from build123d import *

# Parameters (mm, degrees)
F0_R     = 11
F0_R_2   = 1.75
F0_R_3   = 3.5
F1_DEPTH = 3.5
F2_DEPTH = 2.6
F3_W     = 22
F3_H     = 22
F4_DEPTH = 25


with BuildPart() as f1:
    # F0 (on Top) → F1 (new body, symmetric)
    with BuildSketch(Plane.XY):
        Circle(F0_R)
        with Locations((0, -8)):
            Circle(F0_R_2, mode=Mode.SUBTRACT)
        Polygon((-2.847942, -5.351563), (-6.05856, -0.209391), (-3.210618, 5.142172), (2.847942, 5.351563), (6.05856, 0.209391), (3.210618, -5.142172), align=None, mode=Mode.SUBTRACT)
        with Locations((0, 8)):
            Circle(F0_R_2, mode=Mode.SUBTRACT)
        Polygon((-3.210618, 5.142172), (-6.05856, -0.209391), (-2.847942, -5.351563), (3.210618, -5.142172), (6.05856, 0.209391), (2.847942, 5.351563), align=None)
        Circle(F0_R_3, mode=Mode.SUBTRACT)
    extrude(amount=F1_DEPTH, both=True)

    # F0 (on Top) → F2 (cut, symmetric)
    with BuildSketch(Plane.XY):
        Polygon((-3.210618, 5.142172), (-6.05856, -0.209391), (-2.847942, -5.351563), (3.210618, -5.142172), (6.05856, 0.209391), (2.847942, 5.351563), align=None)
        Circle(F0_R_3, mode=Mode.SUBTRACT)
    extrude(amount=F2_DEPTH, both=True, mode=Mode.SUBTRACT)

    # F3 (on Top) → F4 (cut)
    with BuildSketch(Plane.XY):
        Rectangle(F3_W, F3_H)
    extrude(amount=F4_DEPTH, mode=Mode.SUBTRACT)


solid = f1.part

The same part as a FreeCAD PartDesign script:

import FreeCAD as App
import Part
import Sketcher

V = App.Vector
Q = App.Units.Quantity

doc = App.newDocument("Part")
body = doc.addObject("PartDesign::Body", "Body")

# Sketch on XY plane
sketch1 = doc.addObject("Sketcher::SketchObject", "Sketch")
body.addObject(sketch1)
sketch1.AttachmentSupport = (doc.XY_Plane, [""])
sketch1.MapMode = "FlatFace"
sketch1.addGeometry([
    Part.Circle(V(0, 0, 0), V(0, 0, 1), 11),
    Part.Circle(V(0, -8, 0), V(0, 0, 1), 1.75),
    Part.Circle(V(0, 0, 0), V(0, 0, 1), 3.5),
    Part.Circle(V(0, 8, 0), V(0, 0, 1), 1.75),
], False)
sketch1.addConstraint([
    Sketcher.Constraint("Coincident", 0, 3, -1, 1),
    Sketcher.Constraint("Coincident", 2, 3, -1, 1),
    Sketcher.Constraint("Equal", 1, 3),
    Sketcher.Constraint("Symmetric", 1, 3, 3, 3, -1, 1),
    Sketcher.Constraint("PointOnObject", 1, 3, -2),
    Sketcher.Constraint("Diameter", 0, Q("22 mm")),
    Sketcher.Constraint("Diameter", 2, Q("7 mm")),
    Sketcher.Constraint("Diameter", 1, Q("3.5 mm")),
    Sketcher.Constraint("DistanceY", 1, 3, -1, 1, Q("8 mm")),
])
pad1 = doc.addObject("PartDesign::Pad", "Pad")
body.addObject(pad1)
pad1.Profile = sketch1
pad1.Length = 7
pad1.Midplane = True

# Sketch on XY plane
sketch2 = doc.addObject("Sketcher::SketchObject", "Sketch001")
body.addObject(sketch2)
sketch2.AttachmentSupport = (doc.XY_Plane, [""])
sketch2.MapMode = "FlatFace"
sketch2.addGeometry([
    Part.LineSegment(V(-3.210618, 5.142172, 0), V(-6.05856, -0.209391, 0)),  # 0
    Part.LineSegment(V(-6.05856, -0.209391, 0), V(-2.847942, -5.351563, 0)),  # 1
    Part.LineSegment(V(-2.847942, -5.351563, 0), V(3.210618, -5.142172, 0)),  # 2
    Part.LineSegment(V(3.210618, -5.142172, 0), V(6.05856, 0.209391, 0)),  # 3
    Part.LineSegment(V(6.05856, 0.209391, 0), V(2.847942, 5.351563, 0)),  # 4
    Part.LineSegment(V(2.847942, 5.351563, 0), V(-3.210618, 5.142172, 0)),  # 5
    Part.Circle(V(0, 0, 0), V(0, 0, 1), 3.5),  # 6
], False)
sketch2.addConstraint([
    Sketcher.Constraint("Coincident", 0, 2, 1, 1),
    Sketcher.Constraint("Coincident", 1, 2, 2, 1),
    Sketcher.Constraint("Coincident", 2, 2, 3, 1),
    Sketcher.Constraint("Coincident", 3, 2, 4, 1),
    Sketcher.Constraint("Coincident", 4, 2, 5, 1),
    Sketcher.Constraint("Coincident", 5, 2, 0, 1),
    Sketcher.Constraint("Coincident", 6, 3, -1, 1),
    Sketcher.Constraint("Symmetric", 0, 2, 3, 2, -1, 1),
    Sketcher.Constraint("Symmetric", 1, 2, 4, 2, -1, 1),
    Sketcher.Constraint("Symmetric", 2, 2, 5, 2, -1, 1),
    Sketcher.Constraint("Equal", 0, 1),
    Sketcher.Constraint("Equal", 1, 2),
    Sketcher.Constraint("Diameter", 6, Q("7 mm")),
    Sketcher.Constraint("DistanceX", 0, 2, -1, 1, Q("6.05856 mm")),
    Sketcher.Constraint("DistanceY", 0, 2, -1, 1, Q("0.209391 mm")),
    Sketcher.Constraint("DistanceX", -1, 1, 2, 2, Q("3.210618 mm")),
    Sketcher.Constraint("DistanceY", 1, 2, 0, 2, Q("5.142172 mm")),
])
pocket1 = doc.addObject("PartDesign::Pocket", "Pocket")
body.addObject(pocket1)
pocket1.Profile = sketch2
pocket1.Length = 5.2
pocket1.Midplane = True

# Sketch on XY plane
sketch3 = doc.addObject("Sketcher::SketchObject", "Sketch002")
body.addObject(sketch3)
sketch3.AttachmentSupport = (doc.XY_Plane, [""])
sketch3.MapMode = "FlatFace"
sketch3.addGeometry([
    Part.LineSegment(V(-11, 11, 0), V(-11, -11, 0)),
    Part.LineSegment(V(-11, -11, 0), V(11, -11, 0)),
    Part.LineSegment(V(11, -11, 0), V(11, 11, 0)),
    Part.LineSegment(V(11, 11, 0), V(-11, 11, 0)),
], False)
sketch3.addConstraint([
    Sketcher.Constraint("Coincident", 0, 2, 1, 1),
    Sketcher.Constraint("Coincident", 1, 2, 2, 1),
    Sketcher.Constraint("Coincident", 2, 2, 3, 1),
    Sketcher.Constraint("Coincident", 3, 2, 0, 1),
    Sketcher.Constraint("Vertical", 0),
    Sketcher.Constraint("Horizontal", 1),
    Sketcher.Constraint("Vertical", 2),
    Sketcher.Constraint("Horizontal", 3),
    Sketcher.Constraint("Symmetric", 0, 2, 2, 2, -1, 1),
    Sketcher.Constraint("Equal", 3, 0),
    Sketcher.Constraint("DistanceX", 1, 1, 1, 2, Q("22 mm")),
])
pocket2 = doc.addObject("PartDesign::Pocket", "Pocket001")
body.addObject(pocket2)
pocket2.Profile = sketch3
pocket2.Length = 25
pocket2.Reversed = True

doc.recompute()
